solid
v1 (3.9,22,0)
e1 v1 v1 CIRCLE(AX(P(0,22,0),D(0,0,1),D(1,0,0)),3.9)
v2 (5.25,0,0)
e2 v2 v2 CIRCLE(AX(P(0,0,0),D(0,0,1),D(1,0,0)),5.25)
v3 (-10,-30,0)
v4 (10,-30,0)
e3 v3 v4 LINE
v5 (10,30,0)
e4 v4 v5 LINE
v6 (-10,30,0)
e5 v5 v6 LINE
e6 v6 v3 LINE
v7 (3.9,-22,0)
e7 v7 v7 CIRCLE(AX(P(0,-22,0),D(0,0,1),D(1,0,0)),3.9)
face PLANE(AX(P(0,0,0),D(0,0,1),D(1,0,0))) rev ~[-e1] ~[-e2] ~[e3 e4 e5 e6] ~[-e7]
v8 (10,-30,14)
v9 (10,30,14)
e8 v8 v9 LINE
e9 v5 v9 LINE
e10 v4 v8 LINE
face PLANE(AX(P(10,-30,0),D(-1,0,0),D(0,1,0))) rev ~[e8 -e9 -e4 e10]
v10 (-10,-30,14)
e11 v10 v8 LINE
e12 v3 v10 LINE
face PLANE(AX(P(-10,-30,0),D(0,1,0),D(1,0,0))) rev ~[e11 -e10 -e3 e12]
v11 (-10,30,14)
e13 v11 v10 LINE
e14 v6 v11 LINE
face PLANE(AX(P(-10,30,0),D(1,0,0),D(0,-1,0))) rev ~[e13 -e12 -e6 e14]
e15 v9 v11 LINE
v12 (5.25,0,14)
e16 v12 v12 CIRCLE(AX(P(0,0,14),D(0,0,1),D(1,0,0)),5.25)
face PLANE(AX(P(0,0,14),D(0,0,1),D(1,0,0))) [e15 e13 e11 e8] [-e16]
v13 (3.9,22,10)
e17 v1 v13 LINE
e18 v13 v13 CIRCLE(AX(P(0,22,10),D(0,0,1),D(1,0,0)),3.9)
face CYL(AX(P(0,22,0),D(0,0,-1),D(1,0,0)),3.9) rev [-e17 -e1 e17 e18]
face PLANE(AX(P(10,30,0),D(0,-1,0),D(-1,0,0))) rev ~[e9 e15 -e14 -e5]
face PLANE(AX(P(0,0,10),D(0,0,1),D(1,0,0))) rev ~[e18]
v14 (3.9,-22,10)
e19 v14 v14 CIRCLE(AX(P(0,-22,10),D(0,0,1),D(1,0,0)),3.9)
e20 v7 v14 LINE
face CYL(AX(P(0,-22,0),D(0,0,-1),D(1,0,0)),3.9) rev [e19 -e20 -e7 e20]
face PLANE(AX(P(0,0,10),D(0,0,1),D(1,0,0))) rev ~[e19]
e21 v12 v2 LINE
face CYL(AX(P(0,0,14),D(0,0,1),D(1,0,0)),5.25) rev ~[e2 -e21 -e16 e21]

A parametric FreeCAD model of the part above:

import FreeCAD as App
import Part
import Sketcher

V = App.Vector


def add_polygon(sketch, points):
    """Adds a closed chain of lines whose ends are joined by coincident constraints."""
    first, n = sketch.GeometryCount, len(points)
    for a, b in zip(points, points[1:] + points[:1]):
        sketch.addGeometry(Part.LineSegment(App.Vector(*a, 0), App.Vector(*b, 0)), False)
    for i in range(n):
        sketch.addConstraint(Sketcher.Constraint("Coincident", first + i, 2, first + (i + 1) % n, 1))

doc = App.newDocument("Part")
body = doc.addObject("PartDesign::Body", "Body")

sketch1 = body.newObject("Sketcher::SketchObject", "Sketch")
sketch1.AttachmentSupport = (doc.getObject("XY_Plane"), [""])
sketch1.MapMode = "FlatFace"
add_polygon(sketch1, [(-10, 30), (-10, -30), (10, -30), (10, 30)])
sketch1.addConstraint(Sketcher.Constraint("Vertical", 0))
sketch1.addConstraint(Sketcher.Constraint("Horizontal", 1))
sketch1.addConstraint(Sketcher.Constraint("Vertical", 2))
sketch1.addConstraint(Sketcher.Constraint("Horizontal", 3))
sketch1.addConstraint(Sketcher.Constraint("Symmetric", 0, 2, 2, 2, -1, 1))
sketch1.addConstraint(Sketcher.Constraint("DistanceX", 1, 1, 1, 2, 20.0))
sketch1.addConstraint(Sketcher.Constraint("DistanceY", 0, 2, 0, 1, 60.0))
pad1 = body.newObject("PartDesign::Pad", "Pad")
pad1.Profile = sketch1
pad1.Length = 14

sketch2 = body.newObject("Sketcher::SketchObject", "Sketch001")
sketch2.AttachmentSupport = (doc.getObject("XY_Plane"), [""])
sketch2.MapMode = "FlatFace"
sketch2.addGeometry(Part.Circle(V(0, -22, 0), V(0, 0, 1), 3.9), False)
sketch2.addConstraint(Sketcher.Constraint("PointOnObject", 0, 3, -2))
sketch2.addConstraint(Sketcher.Constraint("Diameter", 0, 7.8))
sketch2.addConstraint(Sketcher.Constraint("DistanceY", 0, 3, -1, 1, 22.0))
pocket1 = body.newObject("PartDesign::Pocket", "Pocket")
pocket1.Profile = sketch2
pocket1.Length = 10
pocket1.Reversed = True

sketch3 = body.newObject("Sketcher::SketchObject", "Sketch002")
sketch3.AttachmentSupport = (doc.getObject("XY_Plane"), [""])
sketch3.MapMode = "FlatFace"
sketch3.addGeometry(Part.Circle(V(0, 22, 0), V(0, 0, 1), 3.9), False)
sketch3.addConstraint(Sketcher.Constraint("PointOnObject", 0, 3, -2))
sketch3.addConstraint(Sketcher.Constraint("Diameter", 0, 7.8))
sketch3.addConstraint(Sketcher.Constraint("DistanceY", -1, 1, 0, 3, 22.0))
pocket2 = body.newObject("PartDesign::Pocket", "Pocket001")
pocket2.Profile = sketch3
pocket2.Length = 10
pocket2.Reversed = True

sketch4 = body.newObject("Sketcher::SketchObject", "Sketch003")
sketch4.AttachmentSupport = (doc.getObject("XY_Plane"), [""])
sketch4.MapMode = "FlatFace"
sketch4.AttachmentOffset = App.Placement(V(0, 0, 14), App.Rotation())
sketch4.addGeometry(Part.Circle(V(0, 0, 0), V(0, 0, 1), 5), False)
sketch4.addConstraint(Sketcher.Constraint("Coincident", 0, 3, -1, 1))
sketch4.addConstraint(Sketcher.Constraint("Diameter", 0, 10.5))
pocket3 = body.newObject("PartDesign::Pocket", "Pocket002")
pocket3.Profile = sketch4
pocket3.Length = 14.2

doc.recompute()
